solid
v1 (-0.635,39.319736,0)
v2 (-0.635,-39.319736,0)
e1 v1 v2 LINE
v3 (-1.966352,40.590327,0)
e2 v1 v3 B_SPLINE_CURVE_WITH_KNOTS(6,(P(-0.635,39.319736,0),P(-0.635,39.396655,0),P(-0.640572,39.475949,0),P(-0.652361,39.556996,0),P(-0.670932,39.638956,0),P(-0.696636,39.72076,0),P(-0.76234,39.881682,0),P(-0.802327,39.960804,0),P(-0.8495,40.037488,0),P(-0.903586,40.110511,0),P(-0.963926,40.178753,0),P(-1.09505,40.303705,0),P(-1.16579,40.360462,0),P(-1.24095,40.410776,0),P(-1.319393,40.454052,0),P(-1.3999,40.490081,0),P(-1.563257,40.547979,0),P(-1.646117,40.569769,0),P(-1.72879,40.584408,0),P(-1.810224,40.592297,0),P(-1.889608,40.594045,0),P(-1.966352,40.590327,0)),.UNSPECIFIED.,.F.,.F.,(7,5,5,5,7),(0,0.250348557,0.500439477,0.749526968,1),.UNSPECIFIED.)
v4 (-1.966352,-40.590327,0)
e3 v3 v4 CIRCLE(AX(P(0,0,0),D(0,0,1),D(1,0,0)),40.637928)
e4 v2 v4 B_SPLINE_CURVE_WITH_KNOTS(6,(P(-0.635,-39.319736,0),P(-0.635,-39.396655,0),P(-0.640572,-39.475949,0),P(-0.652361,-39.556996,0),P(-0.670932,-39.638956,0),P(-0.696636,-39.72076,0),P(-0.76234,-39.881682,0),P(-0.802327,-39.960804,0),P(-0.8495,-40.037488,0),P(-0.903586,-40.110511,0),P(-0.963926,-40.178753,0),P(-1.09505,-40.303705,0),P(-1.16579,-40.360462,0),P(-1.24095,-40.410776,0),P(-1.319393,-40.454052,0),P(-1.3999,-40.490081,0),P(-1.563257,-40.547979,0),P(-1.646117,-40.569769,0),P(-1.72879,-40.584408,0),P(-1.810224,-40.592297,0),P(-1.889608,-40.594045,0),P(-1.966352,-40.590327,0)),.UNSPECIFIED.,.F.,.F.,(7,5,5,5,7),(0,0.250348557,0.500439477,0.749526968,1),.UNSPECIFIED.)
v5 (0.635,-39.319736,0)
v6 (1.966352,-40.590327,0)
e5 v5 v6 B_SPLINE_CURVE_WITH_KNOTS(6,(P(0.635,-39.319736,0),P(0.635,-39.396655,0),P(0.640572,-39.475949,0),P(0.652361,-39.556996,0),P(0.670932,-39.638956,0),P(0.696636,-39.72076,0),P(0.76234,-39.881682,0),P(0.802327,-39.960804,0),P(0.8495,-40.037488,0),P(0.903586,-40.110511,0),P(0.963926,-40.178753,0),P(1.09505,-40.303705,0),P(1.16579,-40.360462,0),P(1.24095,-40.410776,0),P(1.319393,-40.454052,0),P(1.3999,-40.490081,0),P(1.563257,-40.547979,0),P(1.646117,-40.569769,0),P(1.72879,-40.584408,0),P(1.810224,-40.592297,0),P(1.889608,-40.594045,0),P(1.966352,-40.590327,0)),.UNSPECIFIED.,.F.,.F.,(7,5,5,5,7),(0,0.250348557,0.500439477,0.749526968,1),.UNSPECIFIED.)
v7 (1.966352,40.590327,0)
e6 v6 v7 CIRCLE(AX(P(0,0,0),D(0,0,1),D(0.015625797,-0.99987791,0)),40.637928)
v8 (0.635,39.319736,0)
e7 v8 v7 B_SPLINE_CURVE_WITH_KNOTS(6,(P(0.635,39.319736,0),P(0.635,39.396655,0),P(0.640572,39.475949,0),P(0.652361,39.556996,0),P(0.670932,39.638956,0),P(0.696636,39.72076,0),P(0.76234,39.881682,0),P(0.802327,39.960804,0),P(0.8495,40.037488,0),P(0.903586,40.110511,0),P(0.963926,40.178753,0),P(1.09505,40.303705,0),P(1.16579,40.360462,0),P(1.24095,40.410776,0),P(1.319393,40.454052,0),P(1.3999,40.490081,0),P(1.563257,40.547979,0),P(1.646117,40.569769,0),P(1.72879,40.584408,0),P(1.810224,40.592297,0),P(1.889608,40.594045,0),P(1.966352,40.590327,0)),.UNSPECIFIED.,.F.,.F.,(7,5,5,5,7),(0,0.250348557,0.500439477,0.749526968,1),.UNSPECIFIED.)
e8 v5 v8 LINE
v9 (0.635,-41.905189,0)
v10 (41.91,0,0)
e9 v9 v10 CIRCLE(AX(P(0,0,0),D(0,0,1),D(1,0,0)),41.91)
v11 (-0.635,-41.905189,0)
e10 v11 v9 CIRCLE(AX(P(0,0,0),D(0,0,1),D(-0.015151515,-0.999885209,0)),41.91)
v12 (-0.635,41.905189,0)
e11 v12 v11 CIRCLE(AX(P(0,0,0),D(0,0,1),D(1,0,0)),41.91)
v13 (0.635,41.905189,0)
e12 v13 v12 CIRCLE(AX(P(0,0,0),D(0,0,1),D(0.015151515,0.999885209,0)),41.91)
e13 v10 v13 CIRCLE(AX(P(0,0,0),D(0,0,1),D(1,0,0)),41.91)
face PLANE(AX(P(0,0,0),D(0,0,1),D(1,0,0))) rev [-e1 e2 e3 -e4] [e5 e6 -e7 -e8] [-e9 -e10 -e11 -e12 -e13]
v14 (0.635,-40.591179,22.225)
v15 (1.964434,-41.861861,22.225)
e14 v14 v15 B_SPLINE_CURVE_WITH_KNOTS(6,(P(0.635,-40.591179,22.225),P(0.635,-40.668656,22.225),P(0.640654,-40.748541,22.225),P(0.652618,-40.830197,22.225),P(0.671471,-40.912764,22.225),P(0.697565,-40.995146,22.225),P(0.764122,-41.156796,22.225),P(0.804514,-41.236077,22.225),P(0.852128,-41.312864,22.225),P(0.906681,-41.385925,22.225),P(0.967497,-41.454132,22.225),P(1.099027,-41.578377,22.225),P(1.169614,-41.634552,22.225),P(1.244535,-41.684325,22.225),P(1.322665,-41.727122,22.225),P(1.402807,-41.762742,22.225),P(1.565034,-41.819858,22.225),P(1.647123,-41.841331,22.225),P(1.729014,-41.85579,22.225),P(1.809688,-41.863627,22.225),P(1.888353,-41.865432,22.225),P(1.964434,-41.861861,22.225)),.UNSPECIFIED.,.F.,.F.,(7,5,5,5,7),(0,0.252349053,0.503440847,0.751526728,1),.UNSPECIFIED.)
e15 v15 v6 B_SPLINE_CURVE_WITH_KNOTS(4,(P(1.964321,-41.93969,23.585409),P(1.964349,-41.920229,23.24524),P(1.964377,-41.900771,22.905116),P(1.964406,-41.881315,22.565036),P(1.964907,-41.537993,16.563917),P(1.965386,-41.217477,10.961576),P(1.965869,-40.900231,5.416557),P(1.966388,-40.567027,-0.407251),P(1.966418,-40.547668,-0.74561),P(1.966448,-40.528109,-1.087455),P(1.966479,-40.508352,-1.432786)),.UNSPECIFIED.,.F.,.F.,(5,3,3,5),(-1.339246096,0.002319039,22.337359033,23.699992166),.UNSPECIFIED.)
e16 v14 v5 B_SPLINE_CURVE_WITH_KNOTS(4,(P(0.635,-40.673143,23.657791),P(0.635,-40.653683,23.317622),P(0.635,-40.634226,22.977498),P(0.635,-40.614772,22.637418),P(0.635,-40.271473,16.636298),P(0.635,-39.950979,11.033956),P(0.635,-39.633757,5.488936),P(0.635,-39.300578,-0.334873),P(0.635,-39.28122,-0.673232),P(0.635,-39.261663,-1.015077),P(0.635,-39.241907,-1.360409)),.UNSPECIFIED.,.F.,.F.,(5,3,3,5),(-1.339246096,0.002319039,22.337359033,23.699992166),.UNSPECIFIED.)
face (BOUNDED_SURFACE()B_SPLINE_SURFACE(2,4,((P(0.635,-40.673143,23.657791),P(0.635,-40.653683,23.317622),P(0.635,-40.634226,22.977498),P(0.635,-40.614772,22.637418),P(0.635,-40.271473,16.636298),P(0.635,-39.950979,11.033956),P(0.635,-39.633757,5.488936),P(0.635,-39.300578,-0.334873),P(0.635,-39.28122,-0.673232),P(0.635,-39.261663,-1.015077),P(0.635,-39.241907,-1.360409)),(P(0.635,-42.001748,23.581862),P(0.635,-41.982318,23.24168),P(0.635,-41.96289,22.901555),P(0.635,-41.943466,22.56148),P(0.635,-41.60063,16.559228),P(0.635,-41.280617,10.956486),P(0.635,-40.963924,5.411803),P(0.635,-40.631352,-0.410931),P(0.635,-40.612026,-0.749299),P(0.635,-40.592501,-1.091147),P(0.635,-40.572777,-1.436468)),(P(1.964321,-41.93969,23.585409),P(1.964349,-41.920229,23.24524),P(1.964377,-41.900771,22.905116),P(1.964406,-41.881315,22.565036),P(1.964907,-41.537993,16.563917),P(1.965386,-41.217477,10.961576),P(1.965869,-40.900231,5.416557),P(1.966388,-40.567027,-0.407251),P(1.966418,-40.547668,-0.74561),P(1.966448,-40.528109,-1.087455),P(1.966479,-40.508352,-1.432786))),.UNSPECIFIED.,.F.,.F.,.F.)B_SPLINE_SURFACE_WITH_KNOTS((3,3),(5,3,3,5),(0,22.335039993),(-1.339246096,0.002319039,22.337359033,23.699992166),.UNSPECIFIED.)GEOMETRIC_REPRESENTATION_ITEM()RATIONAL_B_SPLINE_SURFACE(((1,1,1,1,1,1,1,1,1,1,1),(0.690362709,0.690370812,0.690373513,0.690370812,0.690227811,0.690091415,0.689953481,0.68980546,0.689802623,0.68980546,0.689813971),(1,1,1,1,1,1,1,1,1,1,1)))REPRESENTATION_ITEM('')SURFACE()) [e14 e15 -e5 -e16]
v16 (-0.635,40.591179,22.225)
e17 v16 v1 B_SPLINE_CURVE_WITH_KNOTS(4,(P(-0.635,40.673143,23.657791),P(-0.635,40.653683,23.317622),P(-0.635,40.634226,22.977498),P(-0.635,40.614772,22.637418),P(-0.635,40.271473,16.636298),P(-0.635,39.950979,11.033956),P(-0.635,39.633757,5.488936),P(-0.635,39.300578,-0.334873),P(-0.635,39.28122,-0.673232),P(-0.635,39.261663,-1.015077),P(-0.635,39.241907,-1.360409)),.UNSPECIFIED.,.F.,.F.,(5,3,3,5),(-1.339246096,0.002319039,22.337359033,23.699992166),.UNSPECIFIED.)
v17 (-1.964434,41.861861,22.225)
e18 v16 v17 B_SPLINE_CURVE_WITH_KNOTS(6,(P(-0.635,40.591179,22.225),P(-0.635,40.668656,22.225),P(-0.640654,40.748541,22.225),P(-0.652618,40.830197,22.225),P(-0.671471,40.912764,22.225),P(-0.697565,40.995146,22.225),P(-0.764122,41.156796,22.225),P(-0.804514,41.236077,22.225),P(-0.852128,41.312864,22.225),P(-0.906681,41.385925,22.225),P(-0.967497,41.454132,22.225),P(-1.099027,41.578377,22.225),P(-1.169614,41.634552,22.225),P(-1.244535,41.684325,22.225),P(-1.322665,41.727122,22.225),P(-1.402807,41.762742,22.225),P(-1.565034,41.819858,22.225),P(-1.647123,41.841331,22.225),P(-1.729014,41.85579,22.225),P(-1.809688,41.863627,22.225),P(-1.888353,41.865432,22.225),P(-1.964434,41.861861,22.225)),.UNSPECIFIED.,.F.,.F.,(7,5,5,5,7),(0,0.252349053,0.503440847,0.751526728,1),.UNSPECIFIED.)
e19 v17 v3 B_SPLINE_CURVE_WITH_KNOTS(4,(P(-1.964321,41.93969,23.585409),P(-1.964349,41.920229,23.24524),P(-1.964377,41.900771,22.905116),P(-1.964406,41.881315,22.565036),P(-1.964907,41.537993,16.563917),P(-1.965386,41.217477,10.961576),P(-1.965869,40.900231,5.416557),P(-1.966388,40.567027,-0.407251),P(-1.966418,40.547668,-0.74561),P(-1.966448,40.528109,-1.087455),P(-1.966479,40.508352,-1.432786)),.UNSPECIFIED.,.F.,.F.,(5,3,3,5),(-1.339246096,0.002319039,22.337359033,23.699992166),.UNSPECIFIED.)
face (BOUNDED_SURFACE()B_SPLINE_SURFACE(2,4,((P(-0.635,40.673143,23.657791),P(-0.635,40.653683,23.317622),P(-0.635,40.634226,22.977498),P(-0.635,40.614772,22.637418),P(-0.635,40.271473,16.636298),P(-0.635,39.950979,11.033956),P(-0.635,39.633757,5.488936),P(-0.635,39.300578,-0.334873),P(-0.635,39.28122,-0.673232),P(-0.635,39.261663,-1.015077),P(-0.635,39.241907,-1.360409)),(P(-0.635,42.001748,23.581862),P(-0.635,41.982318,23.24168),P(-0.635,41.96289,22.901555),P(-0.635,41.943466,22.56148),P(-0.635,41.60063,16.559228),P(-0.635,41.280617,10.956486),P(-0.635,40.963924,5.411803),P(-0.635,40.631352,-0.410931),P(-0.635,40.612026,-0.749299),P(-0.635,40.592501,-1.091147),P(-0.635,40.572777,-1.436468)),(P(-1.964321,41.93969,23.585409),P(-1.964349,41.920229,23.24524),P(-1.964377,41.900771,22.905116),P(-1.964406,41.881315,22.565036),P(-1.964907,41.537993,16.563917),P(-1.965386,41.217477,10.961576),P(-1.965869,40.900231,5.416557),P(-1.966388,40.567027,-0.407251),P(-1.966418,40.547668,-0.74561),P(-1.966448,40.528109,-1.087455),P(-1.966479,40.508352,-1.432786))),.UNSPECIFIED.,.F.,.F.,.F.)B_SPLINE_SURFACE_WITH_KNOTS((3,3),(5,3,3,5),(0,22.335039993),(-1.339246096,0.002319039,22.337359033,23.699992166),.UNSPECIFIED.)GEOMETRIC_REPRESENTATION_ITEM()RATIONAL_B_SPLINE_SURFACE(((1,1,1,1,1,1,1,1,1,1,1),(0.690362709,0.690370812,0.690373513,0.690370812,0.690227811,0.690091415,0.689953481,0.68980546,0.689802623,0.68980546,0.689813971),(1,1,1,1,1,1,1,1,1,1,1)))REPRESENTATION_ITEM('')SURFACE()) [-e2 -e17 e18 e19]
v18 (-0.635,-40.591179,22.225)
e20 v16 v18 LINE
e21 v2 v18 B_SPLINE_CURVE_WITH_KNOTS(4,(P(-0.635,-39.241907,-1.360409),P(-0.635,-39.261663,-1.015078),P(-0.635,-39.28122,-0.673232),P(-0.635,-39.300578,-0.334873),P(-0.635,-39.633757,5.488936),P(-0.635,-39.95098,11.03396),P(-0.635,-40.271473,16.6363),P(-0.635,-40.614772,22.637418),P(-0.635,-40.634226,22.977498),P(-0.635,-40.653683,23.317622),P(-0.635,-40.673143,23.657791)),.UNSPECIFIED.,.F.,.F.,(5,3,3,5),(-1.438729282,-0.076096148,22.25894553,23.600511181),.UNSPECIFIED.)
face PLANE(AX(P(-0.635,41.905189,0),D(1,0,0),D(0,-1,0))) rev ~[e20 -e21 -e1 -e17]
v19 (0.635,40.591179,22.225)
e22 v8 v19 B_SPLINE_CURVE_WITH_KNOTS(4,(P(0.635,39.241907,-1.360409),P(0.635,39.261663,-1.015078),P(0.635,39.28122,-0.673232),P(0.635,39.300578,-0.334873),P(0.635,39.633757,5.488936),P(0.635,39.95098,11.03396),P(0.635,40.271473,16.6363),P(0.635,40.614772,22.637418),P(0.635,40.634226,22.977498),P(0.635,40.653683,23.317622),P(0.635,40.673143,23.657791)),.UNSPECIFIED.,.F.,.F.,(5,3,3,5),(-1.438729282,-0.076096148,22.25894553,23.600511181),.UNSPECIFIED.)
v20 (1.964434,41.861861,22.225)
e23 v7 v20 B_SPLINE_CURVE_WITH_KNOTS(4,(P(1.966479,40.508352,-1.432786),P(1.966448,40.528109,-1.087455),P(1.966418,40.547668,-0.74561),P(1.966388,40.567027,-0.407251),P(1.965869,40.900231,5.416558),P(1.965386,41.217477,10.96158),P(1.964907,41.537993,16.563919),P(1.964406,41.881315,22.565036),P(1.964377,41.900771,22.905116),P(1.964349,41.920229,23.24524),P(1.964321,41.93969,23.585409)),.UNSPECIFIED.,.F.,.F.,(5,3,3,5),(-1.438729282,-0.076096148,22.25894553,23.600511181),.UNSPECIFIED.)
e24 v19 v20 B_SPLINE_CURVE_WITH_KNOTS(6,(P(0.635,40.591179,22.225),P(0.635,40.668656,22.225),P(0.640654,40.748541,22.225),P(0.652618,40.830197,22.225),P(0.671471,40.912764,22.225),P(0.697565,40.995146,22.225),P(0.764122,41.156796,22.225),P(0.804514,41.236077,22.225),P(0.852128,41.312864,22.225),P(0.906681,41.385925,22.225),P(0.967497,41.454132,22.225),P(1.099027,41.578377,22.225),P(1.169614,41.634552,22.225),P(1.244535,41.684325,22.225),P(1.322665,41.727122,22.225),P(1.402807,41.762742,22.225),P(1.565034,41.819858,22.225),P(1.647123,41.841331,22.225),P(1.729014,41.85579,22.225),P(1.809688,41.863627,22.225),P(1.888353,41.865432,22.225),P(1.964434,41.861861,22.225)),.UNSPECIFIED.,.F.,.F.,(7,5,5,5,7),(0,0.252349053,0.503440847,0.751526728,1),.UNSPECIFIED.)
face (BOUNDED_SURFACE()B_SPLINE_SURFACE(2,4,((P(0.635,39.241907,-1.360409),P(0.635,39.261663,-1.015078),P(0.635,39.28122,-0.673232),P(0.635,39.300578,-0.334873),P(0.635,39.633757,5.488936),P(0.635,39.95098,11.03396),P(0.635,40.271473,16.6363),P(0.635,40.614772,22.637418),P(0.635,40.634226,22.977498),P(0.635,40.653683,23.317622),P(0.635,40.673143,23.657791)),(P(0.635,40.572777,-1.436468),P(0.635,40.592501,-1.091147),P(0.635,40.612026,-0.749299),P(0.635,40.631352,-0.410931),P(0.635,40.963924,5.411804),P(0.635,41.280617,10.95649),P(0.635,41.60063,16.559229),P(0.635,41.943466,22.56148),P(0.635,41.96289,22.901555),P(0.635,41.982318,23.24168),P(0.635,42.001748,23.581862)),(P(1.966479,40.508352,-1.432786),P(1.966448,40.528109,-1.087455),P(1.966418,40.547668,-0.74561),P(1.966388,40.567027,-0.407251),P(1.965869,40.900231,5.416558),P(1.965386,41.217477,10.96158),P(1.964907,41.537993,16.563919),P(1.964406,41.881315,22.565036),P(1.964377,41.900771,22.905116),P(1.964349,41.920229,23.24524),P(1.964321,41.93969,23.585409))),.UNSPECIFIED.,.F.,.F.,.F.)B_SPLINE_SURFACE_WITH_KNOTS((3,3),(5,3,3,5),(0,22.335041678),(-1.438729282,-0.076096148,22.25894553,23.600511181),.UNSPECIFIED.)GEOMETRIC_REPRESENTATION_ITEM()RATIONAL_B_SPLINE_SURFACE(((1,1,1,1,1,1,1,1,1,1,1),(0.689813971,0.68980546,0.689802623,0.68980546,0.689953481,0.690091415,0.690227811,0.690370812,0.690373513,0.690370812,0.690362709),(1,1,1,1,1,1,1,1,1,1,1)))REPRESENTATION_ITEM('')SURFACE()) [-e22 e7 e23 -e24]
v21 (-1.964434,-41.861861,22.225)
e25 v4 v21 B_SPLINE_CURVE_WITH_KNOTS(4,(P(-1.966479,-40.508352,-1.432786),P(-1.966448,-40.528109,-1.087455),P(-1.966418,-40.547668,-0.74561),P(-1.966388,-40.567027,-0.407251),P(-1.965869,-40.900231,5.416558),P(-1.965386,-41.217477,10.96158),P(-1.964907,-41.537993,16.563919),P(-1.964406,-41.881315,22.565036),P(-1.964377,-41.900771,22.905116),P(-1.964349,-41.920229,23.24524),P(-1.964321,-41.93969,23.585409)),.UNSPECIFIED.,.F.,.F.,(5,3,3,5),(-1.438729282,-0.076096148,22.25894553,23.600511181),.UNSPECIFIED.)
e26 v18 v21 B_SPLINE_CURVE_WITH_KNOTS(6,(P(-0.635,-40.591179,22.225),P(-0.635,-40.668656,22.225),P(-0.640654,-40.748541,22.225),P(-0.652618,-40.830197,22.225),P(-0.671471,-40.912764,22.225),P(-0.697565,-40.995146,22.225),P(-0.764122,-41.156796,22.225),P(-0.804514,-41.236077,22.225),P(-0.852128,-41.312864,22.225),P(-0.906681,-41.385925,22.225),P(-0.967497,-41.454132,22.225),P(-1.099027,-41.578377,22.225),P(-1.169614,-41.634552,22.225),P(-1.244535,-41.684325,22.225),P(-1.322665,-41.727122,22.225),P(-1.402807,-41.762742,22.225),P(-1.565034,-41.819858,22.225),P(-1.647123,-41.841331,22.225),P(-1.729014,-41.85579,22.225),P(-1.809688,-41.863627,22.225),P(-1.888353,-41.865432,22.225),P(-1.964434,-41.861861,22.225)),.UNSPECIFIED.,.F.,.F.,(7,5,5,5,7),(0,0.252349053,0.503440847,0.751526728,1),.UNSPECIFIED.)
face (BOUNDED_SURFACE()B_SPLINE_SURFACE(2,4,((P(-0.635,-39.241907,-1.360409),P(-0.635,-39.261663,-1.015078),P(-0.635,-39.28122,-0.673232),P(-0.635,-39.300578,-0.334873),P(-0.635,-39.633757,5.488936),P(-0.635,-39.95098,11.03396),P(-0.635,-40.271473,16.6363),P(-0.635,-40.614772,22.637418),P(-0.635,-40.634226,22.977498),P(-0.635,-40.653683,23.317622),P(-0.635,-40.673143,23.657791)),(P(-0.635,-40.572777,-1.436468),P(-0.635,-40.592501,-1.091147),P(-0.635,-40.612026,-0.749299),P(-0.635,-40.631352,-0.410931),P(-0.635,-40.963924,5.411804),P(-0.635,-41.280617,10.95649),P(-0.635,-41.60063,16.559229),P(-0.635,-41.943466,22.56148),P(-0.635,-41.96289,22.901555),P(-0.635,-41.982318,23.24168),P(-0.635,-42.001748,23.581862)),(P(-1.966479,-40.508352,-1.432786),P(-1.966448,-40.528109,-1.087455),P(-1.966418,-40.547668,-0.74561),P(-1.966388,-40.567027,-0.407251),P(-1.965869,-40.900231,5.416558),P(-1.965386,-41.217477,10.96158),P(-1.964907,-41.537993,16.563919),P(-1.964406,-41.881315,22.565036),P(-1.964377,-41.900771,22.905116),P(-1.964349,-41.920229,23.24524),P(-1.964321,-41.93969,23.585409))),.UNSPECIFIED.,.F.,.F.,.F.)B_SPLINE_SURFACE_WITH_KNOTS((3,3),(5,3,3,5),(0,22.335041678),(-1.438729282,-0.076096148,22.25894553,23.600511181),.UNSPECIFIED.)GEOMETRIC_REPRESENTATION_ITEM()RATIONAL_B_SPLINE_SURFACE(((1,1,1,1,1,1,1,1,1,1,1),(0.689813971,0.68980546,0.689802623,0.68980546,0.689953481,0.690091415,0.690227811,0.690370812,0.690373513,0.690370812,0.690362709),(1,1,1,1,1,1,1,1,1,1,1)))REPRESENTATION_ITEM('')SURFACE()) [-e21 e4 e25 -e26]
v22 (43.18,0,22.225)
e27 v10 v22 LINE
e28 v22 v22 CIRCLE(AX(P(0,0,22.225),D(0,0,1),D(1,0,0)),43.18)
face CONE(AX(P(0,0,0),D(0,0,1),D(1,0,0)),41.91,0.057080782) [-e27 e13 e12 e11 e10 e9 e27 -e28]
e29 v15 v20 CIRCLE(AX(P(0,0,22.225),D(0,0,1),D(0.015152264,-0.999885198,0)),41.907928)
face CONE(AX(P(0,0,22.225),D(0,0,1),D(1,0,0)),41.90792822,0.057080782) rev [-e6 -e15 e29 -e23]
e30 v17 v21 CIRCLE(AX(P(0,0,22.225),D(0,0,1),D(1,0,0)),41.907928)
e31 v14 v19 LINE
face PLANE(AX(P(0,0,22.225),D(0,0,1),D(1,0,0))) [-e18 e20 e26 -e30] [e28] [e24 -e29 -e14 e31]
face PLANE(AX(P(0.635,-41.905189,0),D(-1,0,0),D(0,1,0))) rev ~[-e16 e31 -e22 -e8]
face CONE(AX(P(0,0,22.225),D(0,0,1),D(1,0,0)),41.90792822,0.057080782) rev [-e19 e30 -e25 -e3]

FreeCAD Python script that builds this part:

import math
import FreeCAD as App
import Part
import Sketcher

V = App.Vector
Q = App.Units.Quantity


def edges_at(feature, points):
    """Names of the edges that pass closest to the given points."""
    edges = feature.Shape.Edges
    near = lambda p: min(range(len(edges)), key=lambda i: edges[i].distToShape(Part.Vertex(*p))[0])
    return sorted({f"Edge{near(p) + 1}" for p in points})


def add_polygon(sketch, points):
    """Adds a closed chain of lines whose ends are joined by coincident constraints."""
    first, n = sketch.GeometryCount, len(points)
    for a, b in zip(points, points[1:] + points[:1]):
        sketch.addGeometry(Part.LineSegment(App.Vector(*a, 0), App.Vector(*b, 0)), False)
    for i in range(n):
        sketch.addConstraint(Sketcher.Constraint("Coincident", first + i, 2, first + (i + 1) % n, 1))

doc = App.newDocument("Part")
body = doc.addObject("PartDesign::Body", "Body")

# Sketch on XZ plane
sketch1 = doc.addObject("Sketcher::SketchObject", "Sketch")
body.addObject(sketch1)
sketch1.AttachmentSupport = (doc.XZ_Plane, [""])
sketch1.MapMode = "FlatFace"
add_polygon(sketch1, [(41.9, 22.2), (40.6, 0), (41.9, 0), (43.2, 22.2)])  # lines 0-3
sketch1.addConstraint(Sketcher.Constraint("Horizontal", 1))
sketch1.addConstraint(Sketcher.Constraint("Horizontal", 3))
sketch1.addConstraint(Sketcher.Constraint("PointOnObject", 0, 2, -1))
sketch1.addConstraint(Sketcher.Constraint("Parallel", 0, 2))
sketch1.addConstraint(Sketcher.Constraint("DistanceX", -1, 1, 2, 2, Q("1.7 in")))
sketch1.addConstraint(Sketcher.Constraint("DistanceX", -1, 1, 1, 2, Q("1.65 in")))
sketch1.addConstraint(Sketcher.Constraint("DistanceY", -1, 1, 2, 2, Q("0.875 in")))
sketch1.addConstraint(Sketcher.Constraint("DistanceX", 1, 1, 1, 2, Q("1.272072 mm")))
revolution = doc.addObject("PartDesign::Revolution", "Revolution")
body.addObject(revolution)
revolution.Profile = sketch1
revolution.ReferenceAxis = (sketch1, ["V_Axis"])
revolution.Angle = 360

# Sketch on XY plane
sketch2 = doc.addObject("Sketcher::SketchObject", "Sketch001")
body.addObject(sketch2)
sketch2.AttachmentSupport = (doc.XY_Plane, [""])
sketch2.MapMode = "FlatFace"
sketch2.addGeometry(Part.ArcOfCircle(Part.Circle(V(0, 0, 0), V(0, 0, 1), 41.9), math.radians(89.13), math.radians(90.87)), False)
sketch2.addGeometry(Part.LineSegment(V(-0.6, 41.9, 0), V(-0.6, -41.9, 0)), False)
sketch2.addGeometry(Part.ArcOfCircle(Part.Circle(V(0, 0, 0), V(0, 0, 1), 41.9), math.radians(-90.87), math.radians(-89.13)), False)
sketch2.addGeometry(Part.LineSegment(V(0.6, -41.9, 0), V(0.6, 41.9, 0)), False)
sketch2.addConstraint(Sketcher.Constraint("Coincident", 0, 2, 1, 1))
sketch2.addConstraint(Sketcher.Constraint("Coincident", 1, 2, 2, 1))
sketch2.addConstraint(Sketcher.Constraint("Coincident", 2, 2, 3, 1))
sketch2.addConstraint(Sketcher.Constraint("Coincident", 3, 2, 0, 1))
sketch2.addConstraint(Sketcher.Constraint("Vertical", 1))
sketch2.addConstraint(Sketcher.Constraint("Vertical", 3))
sketch2.addConstraint(Sketcher.Constraint("Coincident", 0, 3, -1, 1))
sketch2.addConstraint(Sketcher.Constraint("Coincident", 2, 3, -1, 1))
sketch2.addConstraint(Sketcher.Constraint("Equal", 0, 2))
sketch2.addConstraint(Sketcher.Constraint("Horizontal", 1, 2, 2, 2))
sketch2.addConstraint(Sketcher.Constraint("Radius", 0, Q("1.65 in")))
sketch2.addConstraint(Sketcher.Constraint("DistanceX", 1, 2, 2, 2, Q("0.05 in")))
pad1 = doc.addObject("PartDesign::Pad", "Pad")
body.addObject(pad1)
pad1.Profile = sketch2
pad1.Length = Q("0.875 in")
doc.recompute()

fillet = doc.addObject("PartDesign::Fillet", "Fillet")
body.addObject(fillet)
fillet.Base = (pad1, edges_at(pad1, [
    (0.635, -41.268, 11.112),
    (0.635, 41.268, 11.112),
    (-0.635, 41.268, 11.112),
    (-0.635, -41.268, 11.112),
]))
fillet.Radius = Q("0.05 in")

doc.recompute()
